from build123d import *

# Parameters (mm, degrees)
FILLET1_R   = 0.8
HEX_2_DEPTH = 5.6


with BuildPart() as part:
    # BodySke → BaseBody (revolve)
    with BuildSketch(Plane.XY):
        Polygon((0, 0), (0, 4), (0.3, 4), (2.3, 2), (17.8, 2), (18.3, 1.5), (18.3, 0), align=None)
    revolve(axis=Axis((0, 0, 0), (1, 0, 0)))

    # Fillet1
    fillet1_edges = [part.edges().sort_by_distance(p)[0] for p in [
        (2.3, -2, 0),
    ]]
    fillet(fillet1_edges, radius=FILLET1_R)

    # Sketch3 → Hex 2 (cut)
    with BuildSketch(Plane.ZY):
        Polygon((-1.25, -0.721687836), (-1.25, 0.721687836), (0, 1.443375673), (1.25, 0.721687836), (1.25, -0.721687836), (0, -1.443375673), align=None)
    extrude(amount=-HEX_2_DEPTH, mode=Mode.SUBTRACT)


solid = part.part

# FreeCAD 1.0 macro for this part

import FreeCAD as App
import Part
import Sketcher
Q = App.Units.Quantity


def edges_at(feature, points):
    """Names of the edges that pass closest to the given points."""
    edges = feature.Shape.Edges
    near = lambda p: min(range(len(edges)), key=lambda i: edges[i].distToShape(Part.Vertex(*p))[0])
    return sorted({f"Edge{near(p) + 1}" for p in points})

doc = App.newDocument("Part")
body = doc.addObject("PartDesign::Body", "Body")

# Sketch on XY plane
sketch1 = doc.addObject("Sketcher::SketchObject", "Sketch")
body.addObject(sketch1)
sketch1.AttachmentSupport = (doc.XY_Plane, [""])
sketch1.MapMode = "FlatFace"
sketch1.addGeometry(Part.LineSegment(App.Vector(0, 4, 0), App.Vector(0, 0, 0)), False)
sketch1.addGeometry(Part.LineSegment(App.Vector(0, 0, 0), App.Vector(18.3, 0, 0)), False)
sketch1.addGeometry(Part.LineSegment(App.Vector(18.3, 0, 0), App.Vector(18.3, 1.5, 0)), False)
sketch1.addGeometry(Part.LineSegment(App.Vector(18.3, 1.5, 0), App.Vector(17.8, 2, 0)), False)
sketch1.addGeometry(Part.LineSegment(App.Vector(17.8, 2, 0), App.Vector(2.3, 2, 0)), False)
sketch1.addGeometry(Part.LineSegment(App.Vector(2.3, 2, 0), App.Vector(0.3, 4, 0)), False)
sketch1.addGeometry(Part.LineSegment(App.Vector(0.3, 4, 0), App.Vector(0, 4, 0)), False)
sketch1.addConstraint(Sketcher.Constraint("Coincident", 0, 2, 1, 1))
sketch1.addConstraint(Sketcher.Constraint("Coincident", 1, 2, 2, 1))
sketch1.addConstraint(Sketcher.Constraint("Coincident", 2, 2, 3, 1))
sketch1.addConstraint(Sketcher.Constraint("Coincident", 3, 2, 4, 1))
sketch1.addConstraint(Sketcher.Constraint("Coincident", 4, 2, 5, 1))
sketch1.addConstraint(Sketcher.Constraint("Coincident", 5, 2, 6, 1))
sketch1.addConstraint(Sketcher.Constraint("Coincident", 6, 2, 0, 1))
sketch1.addConstraint(Sketcher.Constraint("Vertical", 0))
sketch1.addConstraint(Sketcher.Constraint("Horizontal", 1))
sketch1.addConstraint(Sketcher.Constraint("Vertical", 2))
sketch1.addConstraint(Sketcher.Constraint("Horizontal", 4))
sketch1.addConstraint(Sketcher.Constraint("Horizontal", 6))
sketch1.addConstraint(Sketcher.Constraint("Coincident", 0, 2, -1, 1))
sketch1.addConstraint(Sketcher.Constraint("Parallel", 3, 5))
sketch1.addConstraint(Sketcher.Constraint("DistanceY", 0, 2, 0, 1, 4.0))
sketch1.addConstraint(Sketcher.Constraint("Angle", 3, Q("135 deg")))
sketch1.addConstraint(Sketcher.Constraint("DistanceX", 1, 1, 1, 2, 18.3))
sketch1.addConstraint(Sketcher.Constraint("DistanceX", 4, 2, 4, 1, 15.5))
sketch1.addConstraint(Sketcher.Constraint("DistanceX", 6, 2, 6, 1, 0.3))
sketch1.addConstraint(Sketcher.Constraint("DistanceY", -1, 1, 3, 2, 2.0))
revolution = doc.addObject("PartDesign::Revolution", "Revolution")
body.addObject(revolution)
revolution.Profile = sketch1
revolution.ReferenceAxis = (sketch1, ["H_Axis"])
revolution.Angle = 360
doc.recompute()

fillet = doc.addObject("PartDesign::Fillet", "Fillet")
body.addObject(fillet)
fillet.Base = (revolution, edges_at(revolution, [(2.3, -2, 0)]))
fillet.Radius = 0.8

# Sketch on YZ plane
sketch2 = doc.addObject("Sketcher::SketchObject", "Sketch001")
body.addObject(sketch2)
sketch2.AttachmentSupport = (doc.YZ_Plane, [""])
sketch2.MapMode = "FlatFace"
sketch2.addGeometry(Part.LineSegment(App.Vector(0.7, -1.2, 0), App.Vector(-0.7, -1.2, 0)), False)
sketch2.addGeometry(Part.LineSegment(App.Vector(-0.7, -1.2, 0), App.Vector(-1.4, 0, 0)), False)
sketch2.addGeometry(Part.LineSegment(App.Vector(-1.4, 0, 0), App.Vector(-0.7, 1.2, 0)), False)
sketch2.addGeometry(Part.LineSegment(App.Vector(-0.7, 1.2, 0), App.Vector(0.7, 1.2, 0)), False)
sketch2.addGeometry(Part.LineSegment(App.Vector(0.7, 1.2, 0), App.Vector(1.4, 0, 0)), False)
sketch2.addGeometry(Part.LineSegment(App.Vector(1.4, 0, 0), App.Vector(0.7, -1.2, 0)), False)
sketch2.addConstraint(Sketcher.Constraint("Coincident", 0, 2, 1, 1))
sketch2.addConstraint(Sketcher.Constraint("Coincident", 1, 2, 2, 1))
sketch2.addConstraint(Sketcher.Constraint("Coincident", 2, 2, 3, 1))
sketch2.addConstraint(Sketcher.Constraint("Coincident", 3, 2, 4, 1))
sketch2.addConstraint(Sketcher.Constraint("Coincident", 4, 2, 5, 1))
sketch2.addConstraint(Sketcher.Constraint("Coincident", 5, 2, 0, 1))
sketch2.addConstraint(Sketcher.Constraint("Horizontal", 0))
sketch2.addConstraint(Sketcher.Constraint("Horizontal", 3))
sketch2.addConstraint(Sketcher.Constraint("Symmetric", 0, 2, 3, 2, -1, 1))
sketch2.addConstraint(Sketcher.Constraint("Symmetric", 1, 2, 4, 2, -1, 1))
sketch2.addConstraint(Sketcher.Constraint("PointOnObject", 1, 2, -1))
sketch2.addConstraint(Sketcher.Constraint("Parallel", 2, 5))
sketch2.addConstraint(Sketcher.Constraint("Vertical", 0, 2, 2, 2))
sketch2.addConstraint(Sketcher.Constraint("Angle", 1, Q("120 deg")))
sketch2.addConstraint(Sketcher.Constraint("DistanceY", 0, 2, 2, 2, 2.5))
sketch2.addConstraint(Sketcher.Constraint("DistanceX", 0, 2, 0, 1, 1.443376))
pocket1 = doc.addObject("PartDesign::Pocket", "Pocket")
body.addObject(pocket1)
pocket1.Profile = sketch2
pocket1.Length = 5.6
pocket1.Reversed = True

doc.recompute()
